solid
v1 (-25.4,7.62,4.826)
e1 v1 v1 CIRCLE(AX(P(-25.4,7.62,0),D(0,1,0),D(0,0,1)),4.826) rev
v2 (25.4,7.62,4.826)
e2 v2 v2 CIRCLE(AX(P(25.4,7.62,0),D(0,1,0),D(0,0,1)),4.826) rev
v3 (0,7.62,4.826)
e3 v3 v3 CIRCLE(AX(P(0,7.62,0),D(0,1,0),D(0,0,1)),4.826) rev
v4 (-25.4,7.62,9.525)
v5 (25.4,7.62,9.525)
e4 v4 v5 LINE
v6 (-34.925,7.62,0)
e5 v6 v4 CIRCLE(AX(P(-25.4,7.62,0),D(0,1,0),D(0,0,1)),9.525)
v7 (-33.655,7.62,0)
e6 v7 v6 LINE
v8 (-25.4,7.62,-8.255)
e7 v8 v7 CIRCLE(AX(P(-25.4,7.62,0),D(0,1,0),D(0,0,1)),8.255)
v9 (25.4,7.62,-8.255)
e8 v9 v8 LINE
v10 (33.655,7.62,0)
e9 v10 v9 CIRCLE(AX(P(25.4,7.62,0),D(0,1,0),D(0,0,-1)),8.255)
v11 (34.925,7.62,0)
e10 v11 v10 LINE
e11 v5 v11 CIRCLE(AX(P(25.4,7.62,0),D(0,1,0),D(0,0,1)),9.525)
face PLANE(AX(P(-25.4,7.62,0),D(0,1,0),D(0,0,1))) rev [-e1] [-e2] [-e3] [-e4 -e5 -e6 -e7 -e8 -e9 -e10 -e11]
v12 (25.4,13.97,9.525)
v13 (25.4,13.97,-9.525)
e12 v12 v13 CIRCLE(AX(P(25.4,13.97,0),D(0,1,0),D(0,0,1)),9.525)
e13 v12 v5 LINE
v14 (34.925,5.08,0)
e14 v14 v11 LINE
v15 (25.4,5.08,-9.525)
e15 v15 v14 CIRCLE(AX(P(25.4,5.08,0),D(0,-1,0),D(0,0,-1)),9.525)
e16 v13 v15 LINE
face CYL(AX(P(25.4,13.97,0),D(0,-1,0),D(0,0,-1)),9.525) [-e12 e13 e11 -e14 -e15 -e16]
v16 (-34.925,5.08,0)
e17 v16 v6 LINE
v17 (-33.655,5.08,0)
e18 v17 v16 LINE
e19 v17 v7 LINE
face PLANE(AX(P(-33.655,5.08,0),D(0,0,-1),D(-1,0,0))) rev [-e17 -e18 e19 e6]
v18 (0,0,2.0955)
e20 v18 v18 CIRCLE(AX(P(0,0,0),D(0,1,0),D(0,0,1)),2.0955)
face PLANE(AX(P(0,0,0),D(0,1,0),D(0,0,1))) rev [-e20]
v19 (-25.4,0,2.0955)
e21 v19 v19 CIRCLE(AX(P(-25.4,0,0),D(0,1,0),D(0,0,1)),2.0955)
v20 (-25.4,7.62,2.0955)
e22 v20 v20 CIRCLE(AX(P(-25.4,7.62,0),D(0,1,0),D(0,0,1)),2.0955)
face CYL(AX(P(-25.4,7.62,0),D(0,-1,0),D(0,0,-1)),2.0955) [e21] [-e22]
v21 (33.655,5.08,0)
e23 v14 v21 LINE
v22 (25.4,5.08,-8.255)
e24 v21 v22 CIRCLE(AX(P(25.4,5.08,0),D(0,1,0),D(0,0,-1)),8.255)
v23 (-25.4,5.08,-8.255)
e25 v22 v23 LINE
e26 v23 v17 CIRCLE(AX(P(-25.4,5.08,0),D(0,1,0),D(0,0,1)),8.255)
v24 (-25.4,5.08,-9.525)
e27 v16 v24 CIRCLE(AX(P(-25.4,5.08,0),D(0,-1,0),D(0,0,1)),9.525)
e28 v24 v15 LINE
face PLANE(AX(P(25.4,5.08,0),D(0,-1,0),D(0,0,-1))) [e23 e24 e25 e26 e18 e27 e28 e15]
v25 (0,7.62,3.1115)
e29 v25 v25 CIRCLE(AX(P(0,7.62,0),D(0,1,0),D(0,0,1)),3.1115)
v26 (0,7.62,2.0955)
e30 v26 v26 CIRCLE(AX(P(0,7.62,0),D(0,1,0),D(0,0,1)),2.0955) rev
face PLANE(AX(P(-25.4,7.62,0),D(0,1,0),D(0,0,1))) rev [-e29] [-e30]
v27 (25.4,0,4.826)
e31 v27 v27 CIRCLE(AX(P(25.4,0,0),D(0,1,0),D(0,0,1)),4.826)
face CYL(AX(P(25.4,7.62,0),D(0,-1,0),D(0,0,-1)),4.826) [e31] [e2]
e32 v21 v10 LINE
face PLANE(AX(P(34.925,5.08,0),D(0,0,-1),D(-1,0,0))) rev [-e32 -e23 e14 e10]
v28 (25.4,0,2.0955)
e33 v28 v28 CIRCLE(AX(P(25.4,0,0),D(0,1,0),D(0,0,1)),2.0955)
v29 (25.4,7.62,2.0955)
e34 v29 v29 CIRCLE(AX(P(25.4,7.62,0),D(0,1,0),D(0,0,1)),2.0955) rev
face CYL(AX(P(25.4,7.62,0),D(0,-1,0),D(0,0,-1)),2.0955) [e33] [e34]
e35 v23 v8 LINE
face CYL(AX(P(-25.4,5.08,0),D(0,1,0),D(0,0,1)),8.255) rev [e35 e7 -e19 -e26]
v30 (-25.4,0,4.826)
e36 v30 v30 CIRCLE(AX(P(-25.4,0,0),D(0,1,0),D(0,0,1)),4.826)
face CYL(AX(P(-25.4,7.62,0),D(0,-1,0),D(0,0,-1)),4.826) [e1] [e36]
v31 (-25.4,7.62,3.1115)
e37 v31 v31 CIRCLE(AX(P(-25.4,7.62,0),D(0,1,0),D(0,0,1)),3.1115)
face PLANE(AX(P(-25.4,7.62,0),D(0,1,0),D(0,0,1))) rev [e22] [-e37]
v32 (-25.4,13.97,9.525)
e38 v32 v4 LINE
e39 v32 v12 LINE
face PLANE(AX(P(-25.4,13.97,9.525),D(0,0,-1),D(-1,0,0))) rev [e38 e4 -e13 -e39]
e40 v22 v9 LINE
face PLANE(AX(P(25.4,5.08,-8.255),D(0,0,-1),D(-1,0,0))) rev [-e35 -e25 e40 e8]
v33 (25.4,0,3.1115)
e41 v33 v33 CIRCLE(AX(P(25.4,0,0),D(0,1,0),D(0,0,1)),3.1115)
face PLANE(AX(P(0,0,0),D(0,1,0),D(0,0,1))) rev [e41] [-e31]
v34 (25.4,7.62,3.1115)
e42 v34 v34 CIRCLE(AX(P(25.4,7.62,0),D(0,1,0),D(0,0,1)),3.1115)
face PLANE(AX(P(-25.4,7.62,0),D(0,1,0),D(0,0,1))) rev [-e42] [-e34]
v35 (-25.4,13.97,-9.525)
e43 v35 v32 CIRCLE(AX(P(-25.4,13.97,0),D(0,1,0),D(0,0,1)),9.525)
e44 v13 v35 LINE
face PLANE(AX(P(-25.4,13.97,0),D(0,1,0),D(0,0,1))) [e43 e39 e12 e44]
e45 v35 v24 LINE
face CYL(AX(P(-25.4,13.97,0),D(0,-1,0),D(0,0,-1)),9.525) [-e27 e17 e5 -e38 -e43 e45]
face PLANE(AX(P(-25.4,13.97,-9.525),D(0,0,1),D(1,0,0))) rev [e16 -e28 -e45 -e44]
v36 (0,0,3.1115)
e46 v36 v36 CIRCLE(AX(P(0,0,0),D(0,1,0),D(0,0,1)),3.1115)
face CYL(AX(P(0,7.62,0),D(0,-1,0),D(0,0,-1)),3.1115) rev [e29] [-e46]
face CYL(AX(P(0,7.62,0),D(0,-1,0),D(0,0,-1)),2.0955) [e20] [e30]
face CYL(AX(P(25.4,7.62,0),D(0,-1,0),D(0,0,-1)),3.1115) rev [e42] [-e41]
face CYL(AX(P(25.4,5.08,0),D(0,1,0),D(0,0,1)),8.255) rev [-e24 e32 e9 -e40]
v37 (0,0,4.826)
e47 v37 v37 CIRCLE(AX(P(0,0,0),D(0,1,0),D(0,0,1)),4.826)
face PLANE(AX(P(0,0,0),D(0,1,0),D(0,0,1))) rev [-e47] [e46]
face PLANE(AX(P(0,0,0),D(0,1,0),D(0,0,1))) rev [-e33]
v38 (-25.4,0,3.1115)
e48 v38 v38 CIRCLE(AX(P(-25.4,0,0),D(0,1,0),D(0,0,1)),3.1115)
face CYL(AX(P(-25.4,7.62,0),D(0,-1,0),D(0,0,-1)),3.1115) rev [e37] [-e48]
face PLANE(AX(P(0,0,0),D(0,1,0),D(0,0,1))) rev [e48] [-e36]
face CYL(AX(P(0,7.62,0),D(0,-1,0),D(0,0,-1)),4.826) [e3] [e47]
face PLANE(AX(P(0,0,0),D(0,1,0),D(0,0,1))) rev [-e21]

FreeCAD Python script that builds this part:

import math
import FreeCAD as App
import Part
import Sketcher

V = App.Vector
Q = App.Units.Quantity

doc = App.newDocument("Part")
body = doc.addObject("PartDesign::Body", "Body")

sketch1 = body.newObject("Sketcher::SketchObject", "Sketch")
sketch1.AttachmentSupport = (doc.getObject("XZ_Plane"), [""])
sketch1.MapMode = "FlatFace"
sketch1.addGeometry(Part.Circle(V(-25.4, 0, 0), V(0, 0, 1), 2.0955), False)
sketch1.addConstraint([
    Sketcher.Constraint("PointOnObject", 0, 3, -1),
    Sketcher.Constraint("Diameter", 0, Q("0.165 in")),
    Sketcher.Constraint("DistanceX", 0, 3, -1, 1, Q("1 in")),
])
pad1 = body.newObject("PartDesign::Pad", "Pad")
pad1.Profile = sketch1
pad1.Length = Q("0.3 in")
pad1.Reversed = True
body2 = doc.addObject("PartDesign::Body", "Body001")

sketch2 = body2.newObject("Sketcher::SketchObject", "Sketch001")
sketch2.AttachmentSupport = (doc.getObject("XZ_Plane001"), [""])
sketch2.MapMode = "FlatFace"
sketch2.addGeometry([
    Part.Circle(V(-25.4, 0, 0), V(0, 0, 1), 4.826),
    Part.Circle(V(-25.4, 0, 0), V(0, 0, 1), 3.1115),
], False)
sketch2.addConstraint([
    Sketcher.Constraint("Coincident", 1, 3, 0, 3),
    Sketcher.Constraint("PointOnObject", 0, 3, -1),
    Sketcher.Constraint("Diameter", 0, Q("0.38 in")),
    Sketcher.Constraint("Diameter", 1, Q("0.245 in")),
    Sketcher.Constraint("DistanceX", 0, 3, -1, 1, Q("1 in")),
])
pad2 = body2.newObject("PartDesign::Pad", "Pad001")
pad2.Profile = sketch2
pad2.Length = Q("0.3 in")
pad2.Reversed = True
body3 = doc.addObject("PartDesign::Body", "Body002")

sketch3 = body3.newObject("Sketcher::SketchObject", "Sketch002")
sketch3.AttachmentSupport = (doc.getObject("XZ_Plane002"), [""])
sketch3.MapMode = "FlatFace"
sketch3.addGeometry(Part.Circle(V(0, 0, 0), V(0, 0, 1), 2.0955), False)
sketch3.addConstraint([
    Sketcher.Constraint("Coincident", 0, 3, -1, 1),
    Sketcher.Constraint("Diameter", 0, Q("0.165 in")),
])
pad3 = body3.newObject("PartDesign::Pad", "Pad002")
pad3.Profile = sketch3
pad3.Length = Q("0.3 in")
pad3.Reversed = True
body4 = doc.addObject("PartDesign::Body", "Body003")

sketch4 = body4.newObject("Sketcher::SketchObject", "Sketch003")
sketch4.AttachmentSupport = (doc.getObject("XZ_Plane003"), [""])
sketch4.MapMode = "FlatFace"
sketch4.addGeometry([
    Part.Circle(V(0, 0, 0), V(0, 0, 1), 4.826),
    Part.Circle(V(0, 0, 0), V(0, 0, 1), 3.1115),
], False)
sketch4.addConstraint([
    Sketcher.Constraint("Coincident", 0, 3, -1, 1),
    Sketcher.Constraint("Coincident", 1, 3, -1, 1),
    Sketcher.Constraint("Diameter", 0, Q("0.38 in")),
    Sketcher.Constraint("Diameter", 1, Q("0.245 in")),
])
pad4 = body4.newObject("PartDesign::Pad", "Pad003")
pad4.Profile = sketch4
pad4.Length = Q("0.3 in")
pad4.Reversed = True
body5 = doc.addObject("PartDesign::Body", "Body004")

sketch5 = body5.newObject("Sketcher::SketchObject", "Sketch004")
sketch5.AttachmentSupport = (doc.getObject("XZ_Plane004"), [""])
sketch5.MapMode = "FlatFace"
sketch5.addGeometry(Part.Circle(V(25.4, 0, 0), V(0, 0, 1), 2.0955), False)
sketch5.addConstraint([
    Sketcher.Constraint("PointOnObject", 0, 3, -1),
    Sketcher.Constraint("Diameter", 0, Q("0.165 in")),
    Sketcher.Constraint("DistanceX", -1, 1, 0, 3, Q("1 in")),
])
pad5 = body5.newObject("PartDesign::Pad", "Pad004")
pad5.Profile = sketch5
pad5.Length = Q("0.3 in")
pad5.Reversed = True
body6 = doc.addObject("PartDesign::Body", "Body005")

sketch6 = body6.newObject("Sketcher::SketchObject", "Sketch005")
sketch6.AttachmentSupport = (doc.getObject("XZ_Plane005"), [""])
sketch6.MapMode = "FlatFace"
sketch6.addGeometry([
    Part.Circle(V(25.4, 0, 0), V(0, 0, 1), 4.826),
    Part.Circle(V(25.4, 0, 0), V(0, 0, 1), 3.1115),
], False)
sketch6.addConstraint([
    Sketcher.Constraint("Coincident", 1, 3, 0, 3),
    Sketcher.Constraint("PointOnObject", 0, 3, -1),
    Sketcher.Constraint("Diameter", 0, Q("0.38 in")),
    Sketcher.Constraint("Diameter", 1, Q("0.245 in")),
    Sketcher.Constraint("DistanceX", -1, 1, 0, 3, Q("1 in")),
])
pad6 = body6.newObject("PartDesign::Pad", "Pad005")
pad6.Profile = sketch6
pad6.Length = Q("0.3 in")
pad6.Reversed = True
body.AllowCompound = True
doc.recompute()

boolean = body.newObject("PartDesign::Boolean", "Boolean")
boolean.Type = "Fuse"
boolean.addObjects([body2])
doc.recompute()

boolean2 = body.newObject("PartDesign::Boolean", "Boolean001")
boolean2.Type = "Fuse"
boolean2.addObjects([body3])
doc.recompute()

boolean3 = body.newObject("PartDesign::Boolean", "Boolean002")
boolean3.Type = "Fuse"
boolean3.addObjects([body4])
doc.recompute()

boolean4 = body.newObject("PartDesign::Boolean", "Boolean003")
boolean4.Type = "Fuse"
boolean4.addObjects([body5])
doc.recompute()

boolean5 = body.newObject("PartDesign::Boolean", "Boolean004")
boolean5.Type = "Fuse"
boolean5.addObjects([body6])

sketch7 = body.newObject("Sketcher::SketchObject", "Sketch006")
sketch7.AttachmentSupport = (doc.getObject("XZ_Plane"), [""])
sketch7.MapMode = "FlatFace"
sketch7.AttachmentOffset = App.Placement(V(0, 0, -0.3 * 25.4), App.Rotation())
sketch7.addGeometry([
    Part.LineSegment(V(25.4, -9.525, 0), V(-25.4, -9.525, 0)),
    Part.ArcOfCircle(Part.Circle(V(-25.4, 0, 0), V(0, 0, 1), 9.525), math.radians(90), math.radians(270)),
    Part.LineSegment(V(-25.4, 9.525, 0), V(25.4, 9.525, 0)),
    Part.ArcOfCircle(Part.Circle(V(25.4, 0, 0), V(0, 0, 1), 9.525), math.radians(-90), math.radians(90)),
], False)
sketch7.addConstraint([
    Sketcher.Constraint("Tangent", 0, 2, 1, 2),
    Sketcher.Constraint("Tangent", 1, 1, 2, 1),
    Sketcher.Constraint("Tangent", 2, 2, 3, 2),
    Sketcher.Constraint("Tangent", 3, 1, 0, 1),
    Sketcher.Constraint("Horizontal", 0),
    Sketcher.Constraint("Horizontal", 2),
    Sketcher.Constraint("Symmetric", 1, 3, 3, 3, -1, 1),
    Sketcher.Constraint("DistanceX", 0, 2, 0, 1, Q("2 in")),
    Sketcher.Constraint("Radius", 1, Q("0.375 in")),
])
pad7 = body.newObject("PartDesign::Pad", "Pad006")
pad7.Profile = sketch7
pad7.Length = Q("0.25 in")
pad7.Reversed = True

sketch8 = body.newObject("Sketcher::SketchObject", "Sketch007")
sketch8.AttachmentSupport = (doc.getObject("XZ_Plane"), [""])
sketch8.MapMode = "FlatFace"
sketch8.AttachmentOffset = App.Placement(V(0, 0, -0.3 * 25.4), App.Rotation())
sketch8.addGeometry([
    Part.LineSegment(V(-25.4, -9.525, 0), V(25.4, -9.525, 0)),
    Part.ArcOfCircle(Part.Circle(V(25.4, 0, 0), V(0, 0, 1), 9.525), math.radians(-90), math.radians(0)),
    Part.LineSegment(V(34.925, 0, 0), V(33.655, 0, 0)),
    Part.ArcOfCircle(Part.Circle(V(25.4, 0, 0), V(0, 0, 1), 8.255), math.radians(-90), math.radians(0)),
    Part.LineSegment(V(25.4, -8.255, 0), V(-25.4, -8.255, 0)),
    Part.ArcOfCircle(Part.Circle(V(-25.4, 0, 0), V(0, 0, 1), 8.255), math.radians(180), math.radians(270)),
    Part.LineSegment(V(-33.655, 0, 0), V(-34.925, 0, 0)),
    Part.ArcOfCircle(Part.Circle(V(-25.4, 0, 0), V(0, 0, 1), 9.525), math.radians(180), math.radians(270)),
], False)
sketch8.addConstraint([
    Sketcher.Constraint("Tangent", 0, 2, 1, 1),
    Sketcher.Constraint("Coincident", 1, 2, 2, 1),
    Sketcher.Constraint("Coincident", 2, 2, 3, 2),
    Sketcher.Constraint("Tangent", 3, 1, 4, 1),
    Sketcher.Constraint("Tangent", 4, 2, 5, 2),
    Sketcher.Constraint("Coincident", 5, 1, 6, 1),
    Sketcher.Constraint("Coincident", 6, 2, 7, 1),
    Sketcher.Constraint("Tangent", 7, 2, 0, 1),
    Sketcher.Constraint("Horizontal", 0),
    Sketcher.Constraint("Horizontal", 2),
    Sketcher.Constraint("Horizontal", 4),
    Sketcher.Constraint("Horizontal", 6),
    Sketcher.Constraint("Coincident", 3, 3, 1, 3),
    Sketcher.Constraint("Coincident", 7, 3, 5, 3),
    Sketcher.Constraint("Equal", 3, 5),
    Sketcher.Constraint("Symmetric", 1, 3, 5, 3, -1, 1),
    Sketcher.Constraint("PointOnObject", 1, 2, -1),
    Sketcher.Constraint("PointOnObject", 5, 1, -1),
    Sketcher.Constraint("DistanceX", 0, 1, 0, 2, Q("2 in")),
    Sketcher.Constraint("Radius", 1, Q("0.375 in")),
    Sketcher.Constraint("Radius", 3, Q("0.325 in")),
])
pad8 = body.newObject("PartDesign::Pad", "Pad007")
pad8.Profile = sketch8
pad8.Length = Q("0.1 in")

doc.recompute()
